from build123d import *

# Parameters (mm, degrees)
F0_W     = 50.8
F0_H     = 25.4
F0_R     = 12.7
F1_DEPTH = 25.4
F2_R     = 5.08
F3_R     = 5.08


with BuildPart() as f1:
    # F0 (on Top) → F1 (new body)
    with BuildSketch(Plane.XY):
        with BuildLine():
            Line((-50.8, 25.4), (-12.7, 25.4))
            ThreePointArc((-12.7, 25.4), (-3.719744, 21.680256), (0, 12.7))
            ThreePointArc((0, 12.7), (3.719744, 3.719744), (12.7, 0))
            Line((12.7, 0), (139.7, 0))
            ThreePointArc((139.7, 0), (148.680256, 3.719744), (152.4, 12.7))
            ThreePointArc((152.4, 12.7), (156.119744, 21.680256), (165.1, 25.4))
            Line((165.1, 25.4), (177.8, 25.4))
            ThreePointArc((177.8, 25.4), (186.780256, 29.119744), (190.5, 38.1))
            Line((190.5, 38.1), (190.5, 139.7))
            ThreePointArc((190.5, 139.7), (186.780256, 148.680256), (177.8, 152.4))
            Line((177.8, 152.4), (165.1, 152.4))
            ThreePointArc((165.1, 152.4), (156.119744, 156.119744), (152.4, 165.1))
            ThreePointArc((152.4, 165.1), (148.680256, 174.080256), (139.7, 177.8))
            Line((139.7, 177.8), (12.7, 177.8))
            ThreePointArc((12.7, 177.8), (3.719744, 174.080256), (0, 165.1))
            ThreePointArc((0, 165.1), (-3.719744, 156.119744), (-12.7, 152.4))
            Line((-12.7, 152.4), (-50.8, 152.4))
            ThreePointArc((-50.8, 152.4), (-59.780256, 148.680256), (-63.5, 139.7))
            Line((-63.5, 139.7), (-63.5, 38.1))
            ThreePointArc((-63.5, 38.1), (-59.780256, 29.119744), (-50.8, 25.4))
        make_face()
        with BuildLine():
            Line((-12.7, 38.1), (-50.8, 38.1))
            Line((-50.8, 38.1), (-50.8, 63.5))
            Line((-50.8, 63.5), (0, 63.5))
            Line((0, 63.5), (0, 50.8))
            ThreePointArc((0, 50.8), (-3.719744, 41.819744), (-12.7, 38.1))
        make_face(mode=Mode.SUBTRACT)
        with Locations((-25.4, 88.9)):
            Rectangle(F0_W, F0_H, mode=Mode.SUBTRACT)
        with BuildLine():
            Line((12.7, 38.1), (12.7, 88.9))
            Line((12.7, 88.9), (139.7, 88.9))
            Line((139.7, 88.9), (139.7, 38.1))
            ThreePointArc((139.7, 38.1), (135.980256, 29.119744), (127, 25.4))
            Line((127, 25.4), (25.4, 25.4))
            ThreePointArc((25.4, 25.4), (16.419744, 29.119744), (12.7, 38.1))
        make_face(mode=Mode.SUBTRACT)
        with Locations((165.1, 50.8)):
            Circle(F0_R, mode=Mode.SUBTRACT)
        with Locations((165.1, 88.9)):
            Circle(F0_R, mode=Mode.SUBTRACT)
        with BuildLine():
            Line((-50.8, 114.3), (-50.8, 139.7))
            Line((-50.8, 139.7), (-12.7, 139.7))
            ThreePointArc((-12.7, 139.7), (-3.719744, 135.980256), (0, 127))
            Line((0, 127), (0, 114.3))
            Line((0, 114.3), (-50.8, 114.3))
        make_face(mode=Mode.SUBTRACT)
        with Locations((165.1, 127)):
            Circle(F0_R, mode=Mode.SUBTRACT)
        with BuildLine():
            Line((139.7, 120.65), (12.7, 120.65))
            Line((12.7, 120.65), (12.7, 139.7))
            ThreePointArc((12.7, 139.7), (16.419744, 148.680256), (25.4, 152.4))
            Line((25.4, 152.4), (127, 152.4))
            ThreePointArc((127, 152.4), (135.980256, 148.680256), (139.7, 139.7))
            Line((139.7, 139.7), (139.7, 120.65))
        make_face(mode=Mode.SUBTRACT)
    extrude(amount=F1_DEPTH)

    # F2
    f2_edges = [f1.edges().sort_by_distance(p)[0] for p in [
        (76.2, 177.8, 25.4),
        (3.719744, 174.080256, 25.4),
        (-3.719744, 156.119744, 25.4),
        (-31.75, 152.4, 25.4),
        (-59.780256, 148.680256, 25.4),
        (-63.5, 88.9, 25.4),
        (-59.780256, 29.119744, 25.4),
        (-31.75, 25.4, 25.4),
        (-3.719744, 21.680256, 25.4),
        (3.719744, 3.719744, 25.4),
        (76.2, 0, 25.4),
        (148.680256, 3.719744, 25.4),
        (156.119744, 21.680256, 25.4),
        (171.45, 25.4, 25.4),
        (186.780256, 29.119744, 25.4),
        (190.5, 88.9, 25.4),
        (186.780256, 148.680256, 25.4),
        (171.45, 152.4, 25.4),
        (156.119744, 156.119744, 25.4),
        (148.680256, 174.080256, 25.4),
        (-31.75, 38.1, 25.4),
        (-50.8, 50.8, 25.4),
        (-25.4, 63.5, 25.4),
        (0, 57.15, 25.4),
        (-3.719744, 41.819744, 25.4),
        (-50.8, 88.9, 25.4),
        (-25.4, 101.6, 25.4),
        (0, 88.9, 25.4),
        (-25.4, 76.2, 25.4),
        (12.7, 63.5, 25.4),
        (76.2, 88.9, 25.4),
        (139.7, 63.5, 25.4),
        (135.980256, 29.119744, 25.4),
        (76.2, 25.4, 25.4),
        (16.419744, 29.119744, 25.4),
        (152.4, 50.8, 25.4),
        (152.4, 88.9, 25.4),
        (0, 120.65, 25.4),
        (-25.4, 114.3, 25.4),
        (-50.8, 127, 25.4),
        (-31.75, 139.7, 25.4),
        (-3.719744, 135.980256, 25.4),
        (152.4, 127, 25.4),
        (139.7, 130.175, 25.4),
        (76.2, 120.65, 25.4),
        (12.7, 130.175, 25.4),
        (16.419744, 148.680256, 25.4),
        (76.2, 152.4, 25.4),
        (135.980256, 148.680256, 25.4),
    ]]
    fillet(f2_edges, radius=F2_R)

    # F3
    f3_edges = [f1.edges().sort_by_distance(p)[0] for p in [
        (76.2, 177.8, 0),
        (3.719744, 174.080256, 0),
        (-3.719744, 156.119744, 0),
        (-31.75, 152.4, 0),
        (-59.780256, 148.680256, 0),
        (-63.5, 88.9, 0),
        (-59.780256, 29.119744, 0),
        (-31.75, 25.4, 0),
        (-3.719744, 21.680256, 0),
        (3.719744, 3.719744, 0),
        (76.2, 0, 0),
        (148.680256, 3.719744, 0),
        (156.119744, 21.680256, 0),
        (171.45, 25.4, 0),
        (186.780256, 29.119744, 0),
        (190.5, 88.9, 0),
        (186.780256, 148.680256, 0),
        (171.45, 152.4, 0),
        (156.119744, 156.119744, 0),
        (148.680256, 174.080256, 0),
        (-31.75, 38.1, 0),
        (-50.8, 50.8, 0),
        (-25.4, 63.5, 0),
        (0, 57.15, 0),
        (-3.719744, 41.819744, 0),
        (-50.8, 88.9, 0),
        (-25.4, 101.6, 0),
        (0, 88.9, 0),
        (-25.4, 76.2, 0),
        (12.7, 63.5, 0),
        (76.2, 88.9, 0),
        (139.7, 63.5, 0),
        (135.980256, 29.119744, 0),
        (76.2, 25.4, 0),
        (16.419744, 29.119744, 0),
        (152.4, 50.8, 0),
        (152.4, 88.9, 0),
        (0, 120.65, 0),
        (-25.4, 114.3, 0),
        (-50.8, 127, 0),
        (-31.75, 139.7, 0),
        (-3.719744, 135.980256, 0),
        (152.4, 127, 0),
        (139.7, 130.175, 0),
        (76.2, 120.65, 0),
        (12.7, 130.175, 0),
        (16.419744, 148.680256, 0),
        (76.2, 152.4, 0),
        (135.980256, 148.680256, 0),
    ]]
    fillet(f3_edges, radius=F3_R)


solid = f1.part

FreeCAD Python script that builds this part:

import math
import FreeCAD as App
import Part
import Sketcher
from FreeCAD import Vector
Q = App.Units.Quantity


def edges_at(feature, points):
    """Names of the edges that pass closest to the given points."""
    edges = feature.Shape.Edges
    near = lambda p: min(range(len(edges)), key=lambda i: edges[i].distToShape(Part.Vertex(*p))[0])
    return sorted({f"Edge{near(p) + 1}" for p in points})

doc = App.newDocument("Part")
body = doc.addObject("PartDesign::Body", "Body")

# Sketch on XY plane
sketch1 = body.newObject("Sketcher::SketchObject", "Sketch")
sketch1.AttachmentSupport = (doc.getObject("XY_Plane"), [""])
sketch1.MapMode = "FlatFace"
sketch1.addGeometry(Part.LineSegment(Vector(-51, 25, 0), Vector(-13, 25, 0)), False)
sketch1.addGeometry(Part.ArcOfCircle(Part.Circle(Vector(-13, 13, 0), Vector(0, 0, 1), 13), math.radians(0), math.radians(90)), False)
sketch1.addGeometry(Part.ArcOfCircle(Part.Circle(Vector(13, 13, 0), Vector(0, 0, 1), 13), math.radians(-180), math.radians(-90)), False)
sketch1.addGeometry(Part.LineSegment(Vector(13, 0, 0), Vector(140, 0, 0)), False)
sketch1.addGeometry(Part.ArcOfCircle(Part.Circle(Vector(140, 13, 0), Vector(0, 0, 1), 13), math.radians(-90), math.radians(0)), False)
sketch1.addGeometry(Part.ArcOfCircle(Part.Circle(Vector(165, 13, 0), Vector(0, 0, 1), 13), math.radians(90), math.radians(180)), False)
sketch1.addGeometry(Part.LineSegment(Vector(165, 25, 0), Vector(178, 25, 0)), False)
sketch1.addGeometry(Part.ArcOfCircle(Part.Circle(Vector(178, 38, 0), Vector(0, 0, 1), 13), math.radians(-90), math.radians(0)), False)
sketch1.addGeometry(Part.LineSegment(Vector(190, 38, 0), Vector(190, 140, 0)), False)
sketch1.addGeometry(Part.ArcOfCircle(Part.Circle(Vector(178, 140, 0), Vector(0, 0, 1), 13), math.radians(0), math.radians(90)), False)
sketch1.addGeometry(Part.LineSegment(Vector(178, 152, 0), Vector(165, 152, 0)), False)
sketch1.addGeometry(Part.ArcOfCircle(Part.Circle(Vector(165, 165, 0), Vector(0, 0, 1), 13), math.radians(-180), math.radians(-90)), False)
sketch1.addGeometry(Part.ArcOfCircle(Part.Circle(Vector(140, 165, 0), Vector(0, 0, 1), 13), math.radians(0), math.radians(90)), False)
sketch1.addGeometry(Part.LineSegment(Vector(140, 178, 0), Vector(13, 178, 0)), False)
sketch1.addGeometry(Part.ArcOfCircle(Part.Circle(Vector(13, 165, 0), Vector(0, 0, 1), 13), math.radians(90), math.radians(180)), False)
sketch1.addGeometry(Part.ArcOfCircle(Part.Circle(Vector(-13, 165, 0), Vector(0, 0, 1), 13), math.radians(-90), math.radians(0)), False)
sketch1.addGeometry(Part.LineSegment(Vector(-13, 152, 0), Vector(-51, 152, 0)), False)
sketch1.addGeometry(Part.ArcOfCircle(Part.Circle(Vector(-51, 140, 0), Vector(0, 0, 1), 13), math.radians(90), math.radians(180)), False)
sketch1.addGeometry(Part.LineSegment(Vector(-64, 140, 0), Vector(-64, 38, 0)), False)
sketch1.addGeometry(Part.ArcOfCircle(Part.Circle(Vector(-51, 38, 0), Vector(0, 0, 1), 13), math.radians(-180), math.radians(-90)), False)
sketch1.addGeometry(Part.ArcOfCircle(Part.Circle(Vector(-13, 51, 0), Vector(0, 0, 1), 13), math.radians(-90), math.radians(0)), False)
sketch1.addGeometry(Part.LineSegment(Vector(-13, 38, 0), Vector(-51, 38, 0)), False)
sketch1.addGeometry(Part.LineSegment(Vector(-51, 38, 0), Vector(-51, 64, 0)), False)
sketch1.addGeometry(Part.LineSegment(Vector(-51, 64, 0), Vector(0, 64, 0)), False)
sketch1.addGeometry(Part.LineSegment(Vector(0, 64, 0), Vector(0, 51, 0)), False)
sketch1.addGeometry(Part.Circle(Vector(165, 51, 0), Vector(0, 0, 1), 13), False)
sketch1.addGeometry(Part.ArcOfCircle(Part.Circle(Vector(25, 38, 0), Vector(0, 0, 1), 13), math.radians(-180), math.radians(-90)), False)
sketch1.addGeometry(Part.LineSegment(Vector(13, 38, 0), Vector(13, 89, 0)), False)
sketch1.addGeometry(Part.LineSegment(Vector(13, 89, 0), Vector(140, 89, 0)), False)
sketch1.addGeometry(Part.LineSegment(Vector(140, 89, 0), Vector(140, 38, 0)), False)
sketch1.addGeometry(Part.ArcOfCircle(Part.Circle(Vector(127, 38, 0), Vector(0, 0, 1), 13), math.radians(-90), math.radians(0)), False)
sketch1.addGeometry(Part.LineSegment(Vector(127, 25, 0), Vector(25, 25, 0)), False)
sketch1.addGeometry(Part.LineSegment(Vector(0, 76, 0), Vector(-51, 76, 0)), False)
sketch1.addGeometry(Part.LineSegment(Vector(-51, 76, 0), Vector(-51, 102, 0)), False)
sketch1.addGeometry(Part.LineSegment(Vector(-51, 102, 0), Vector(0, 102, 0)), False)
sketch1.addGeometry(Part.LineSegment(Vector(0, 102, 0), Vector(0, 76, 0)), False)
sketch1.addGeometry(Part.LineSegment(Vector(0, 114, 0), Vector(-51, 114, 0)), False)
sketch1.addGeometry(Part.LineSegment(Vector(-51, 114, 0), Vector(-51, 140, 0)), False)
sketch1.addGeometry(Part.LineSegment(Vector(-51, 140, 0), Vector(-13, 140, 0)), False)
sketch1.addGeometry(Part.ArcOfCircle(Part.Circle(Vector(-13, 127, 0), Vector(0, 0, 1), 13), math.radians(0), math.radians(90)), False)
sketch1.addGeometry(Part.LineSegment(Vector(0, 127, 0), Vector(0, 114, 0)), False)
sketch1.addGeometry(Part.Circle(Vector(165, 89, 0), Vector(0, 0, 1), 13), False)
sketch1.addGeometry(Part.LineSegment(Vector(140, 140, 0), Vector(140, 121, 0)), False)
sketch1.addGeometry(Part.LineSegment(Vector(140, 121, 0), Vector(13, 121, 0)), False)
sketch1.addGeometry(Part.LineSegment(Vector(13, 121, 0), Vector(13, 140, 0)), False)
sketch1.addGeometry(Part.ArcOfCircle(Part.Circle(Vector(25, 140, 0), Vector(0, 0, 1), 13), math.radians(90), math.radians(180)), False)
sketch1.addGeometry(Part.LineSegment(Vector(25, 152, 0), Vector(127, 152, 0)), False)
sketch1.addGeometry(Part.ArcOfCircle(Part.Circle(Vector(127, 140, 0), Vector(0, 0, 1), 13), math.radians(0), math.radians(90)), False)
sketch1.addGeometry(Part.Circle(Vector(165, 127, 0), Vector(0, 0, 1), 13), False)
sketch1.addConstraint(Sketcher.Constraint("Tangent", 0, 2, 1, 2))
sketch1.addConstraint(Sketcher.Constraint("Tangent", 1, 1, 2, 1))
sketch1.addConstraint(Sketcher.Constraint("Tangent", 2, 2, 3, 1))
sketch1.addConstraint(Sketcher.Constraint("Tangent", 3, 2, 4, 1))
sketch1.addConstraint(Sketcher.Constraint("Tangent", 4, 2, 5, 2))
sketch1.addConstraint(Sketcher.Constraint("Tangent", 5, 1, 6, 1))
sketch1.addConstraint(Sketcher.Constraint("Tangent", 6, 2, 7, 1))
sketch1.addConstraint(Sketcher.Constraint("Tangent", 7, 2, 8, 1))
sketch1.addConstraint(Sketcher.Constraint("Tangent", 8, 2, 9, 1))
sketch1.addConstraint(Sketcher.Constraint("Tangent", 9, 2, 10, 1))
sketch1.addConstraint(Sketcher.Constraint("Tangent", 10, 2, 11, 2))
sketch1.addConstraint(Sketcher.Constraint("Tangent", 11, 1, 12, 1))
sketch1.addConstraint(Sketcher.Constraint("Tangent", 12, 2, 13, 1))
sketch1.addConstraint(Sketcher.Constraint("Tangent", 13, 2, 14, 1))
sketch1.addConstraint(Sketcher.Constraint("Tangent", 14, 2, 15, 2))
sketch1.addConstraint(Sketcher.Constraint("Tangent", 15, 1, 16, 1))
sketch1.addConstraint(Sketcher.Constraint("Tangent", 16, 2, 17, 1))
sketch1.addConstraint(Sketcher.Constraint("Tangent", 17, 2, 18, 1))
sketch1.addConstraint(Sketcher.Constraint("Tangent", 18, 2, 19, 1))
sketch1.addConstraint(Sketcher.Constraint("Tangent", 19, 2, 0, 1))
sketch1.addConstraint(Sketcher.Constraint("Tangent", 20, 1, 21, 1))
sketch1.addConstraint(Sketcher.Constraint("Coincident", 21, 2, 22, 1))
sketch1.addConstraint(Sketcher.Constraint("Coincident", 22, 2, 23, 1))
sketch1.addConstraint(Sketcher.Constraint("Coincident", 23, 2, 24, 1))
sketch1.addConstraint(Sketcher.Constraint("Tangent", 24, 2, 20, 2))
sketch1.addConstraint(Sketcher.Constraint("Tangent", 26, 1, 27, 1))
sketch1.addConstraint(Sketcher.Constraint("Coincident", 27, 2, 28, 1))
sketch1.addConstraint(Sketcher.Constraint("Coincident", 28, 2, 29, 1))
sketch1.addConstraint(Sketcher.Constraint("Tangent", 29, 2, 30, 2))
sketch1.addConstraint(Sketcher.Constraint("Tangent", 30, 1, 31, 1))
sketch1.addConstraint(Sketcher.Constraint("Tangent", 31, 2, 26, 2))
sketch1.addConstraint(Sketcher.Constraint("Coincident", 32, 2, 33, 1))
sketch1.addConstraint(Sketcher.Constraint("Coincident", 33, 2, 34, 1))
sketch1.addConstraint(Sketcher.Constraint("Coincident", 34, 2, 35, 1))
sketch1.addConstraint(Sketcher.Constraint("Coincident", 35, 2, 32, 1))
sketch1.addConstraint(Sketcher.Constraint("Coincident", 36, 2, 37, 1))
sketch1.addConstraint(Sketcher.Constraint("Coincident", 37, 2, 38, 1))
sketch1.addConstraint(Sketcher.Constraint("Tangent", 38, 2, 39, 2))
sketch1.addConstraint(Sketcher.Constraint("Tangent", 39, 1, 40, 1))
sketch1.addConstraint(Sketcher.Constraint("Coincident", 40, 2, 36, 1))
sketch1.addConstraint(Sketcher.Constraint("Coincident", 42, 2, 43, 1))
sketch1.addConstraint(Sketcher.Constraint("Coincident", 43, 2, 44, 1))
sketch1.addConstraint(Sketcher.Constraint("Tangent", 44, 2, 45, 2))
sketch1.addConstraint(Sketcher.Constraint("Tangent", 45, 1, 46, 1))
sketch1.addConstraint(Sketcher.Constraint("Tangent", 46, 2, 47, 2))
sketch1.addConstraint(Sketcher.Constraint("Tangent", 47, 1, 42, 1))
sketch1.addConstraint(Sketcher.Constraint("Horizontal", 0))
sketch1.addConstraint(Sketcher.Constraint("Horizontal", 3))
sketch1.addConstraint(Sketcher.Constraint("Horizontal", 6))
sketch1.addConstraint(Sketcher.Constraint("Vertical", 8))
sketch1.addConstraint(Sketcher.Constraint("Horizontal", 10))
sketch1.addConstraint(Sketcher.Constraint("Horizontal", 13))
sketch1.addConstraint(Sketcher.Constraint("Horizontal", 16))
sketch1.addConstraint(Sketcher.Constraint("Vertical", 18))
sketch1.addConstraint(Sketcher.Constraint("Horizontal", 21))
sketch1.addConstraint(Sketcher.Constraint("Vertical", 22))
sketch1.addConstraint(Sketcher.Constraint("Horizontal", 23))
sketch1.addConstraint(Sketcher.Constraint("Vertical", 24))
sketch1.addConstraint(Sketcher.Constraint("Vertical", 27))
sketch1.addConstraint(Sketcher.Constraint("Horizontal", 28))
sketch1.addConstraint(Sketcher.Constraint("Vertical", 29))
sketch1.addConstraint(Sketcher.Constraint("Horizontal", 31))
sketch1.addConstraint(Sketcher.Constraint("Horizontal", 32))
sketch1.addConstraint(Sketcher.Constraint("Vertical", 33))
sketch1.addConstraint(Sketcher.Constraint("Horizontal", 34))
sketch1.addConstraint(Sketcher.Constraint("Vertical", 35))
sketch1.addConstraint(Sketcher.Constraint("Horizontal", 36))
sketch1.addConstraint(Sketcher.Constraint("Vertical", 37))
sketch1.addConstraint(Sketcher.Constraint("Horizontal", 38))
sketch1.addConstraint(Sketcher.Constraint("Vertical", 40))
sketch1.addConstraint(Sketcher.Constraint("Vertical", 42))
sketch1.addConstraint(Sketcher.Constraint("Horizontal", 43))
sketch1.addConstraint(Sketcher.Constraint("Vertical", 44))
sketch1.addConstraint(Sketcher.Constraint("Horizontal", 46))
sketch1.addConstraint(Sketcher.Constraint("Coincident", 21, 2, 19, 3))
sketch1.addConstraint(Sketcher.Constraint("Coincident", 37, 2, 17, 3))
sketch1.addConstraint(Sketcher.Constraint("Equal", 1, 2))
sketch1.addConstraint(Sketcher.Constraint("Equal", 2, 4))
sketch1.addConstraint(Sketcher.Constraint("Equal", 4, 5))
sketch1.addConstraint(Sketcher.Constraint("Equal", 5, 7))
sketch1.addConstraint(Sketcher.Constraint("Equal", 7, 9))
sketch1.addConstraint(Sketcher.Constraint("Equal", 9, 11))
sketch1.addConstraint(Sketcher.Constraint("Equal", 11, 12))
sketch1.addConstraint(Sketcher.Constraint("Equal", 12, 14))
sketch1.addConstraint(Sketcher.Constraint("Equal", 14, 15))
sketch1.addConstraint(Sketcher.Constraint("Equal", 15, 17))
sketch1.addConstraint(Sketcher.Constraint("Equal", 17, 19))
sketch1.addConstraint(Sketcher.Constraint("Equal", 19, 20))
sketch1.addConstraint(Sketcher.Constraint("Equal", 20, 25))
sketch1.addConstraint(Sketcher.Constraint("Equal", 25, 26))
sketch1.addConstraint(Sketcher.Constraint("Equal", 26, 30))
sketch1.addConstraint(Sketcher.Constraint("Equal", 30, 39))
sketch1.addConstraint(Sketcher.Constraint("Equal", 39, 41))
sketch1.addConstraint(Sketcher.Constraint("Equal", 41, 45))
sketch1.addConstraint(Sketcher.Constraint("Equal", 45, 47))
sketch1.addConstraint(Sketcher.Constraint("Equal", 47, 48))
sketch1.addConstraint(Sketcher.Constraint("Symmetric", 1, 3, 2, 3, -2))
sketch1.addConstraint(Sketcher.Constraint("Symmetric", 14, 3, 15, 3, -2))
sketch1.addConstraint(Sketcher.Constraint("Symmetric", 20, 1, 26, 1, -2))
sketch1.addConstraint(Sketcher.Constraint("Symmetric", 38, 2, 44, 2, -2))
sketch1.addConstraint(Sketcher.Constraint("PointOnObject", 2, 2, -1))
sketch1.addConstraint(Sketcher.Constraint("PointOnObject", 23, 2, -2))
sketch1.addConstraint(Sketcher.Constraint("PointOnObject", 34, 2, -2))
sketch1.addConstraint(Sketcher.Constraint("PointOnObject", 39, 1, -2))
sketch1.addConstraint(Sketcher.Constraint("Horizontal", 4, 3, 5, 3))
sketch1.addConstraint(Sketcher.Constraint("Horizontal", 11, 3, 12, 3))
sketch1.addConstraint(Sketcher.Constraint("Horizontal", 20, 3, 25, 3))
sketch1.addConstraint(Sketcher.Constraint("Horizontal", 39, 3, 48, 3))
sketch1.addConstraint(Sketcher.Constraint("Horizontal", 41, 3, 27, 2))
sketch1.addConstraint(Sketcher.Constraint("Vertical", 5, 3, 11, 3))
sketch1.addConstraint(Sketcher.Constraint("Vertical", 11, 3, 25, 3))
sketch1.addConstraint(Sketcher.Constraint("Vertical", 25, 3, 41, 3))
sketch1.addConstraint(Sketcher.Constraint("Vertical", 30, 3, 47, 3))
sketch1.addConstraint(Sketcher.Constraint("Vertical", 41, 3, 48, 3))
sketch1.addConstraint(Sketcher.Constraint("Vertical", 12, 2, 28, 2))
sketch1.addConstraint(Sketcher.Constraint("Vertical", 22, 2, 32, 2))
sketch1.addConstraint(Sketcher.Constraint("Equal", 46, 8))
sketch1.addConstraint(Sketcher.Constraint("Equal", 10, 24))
sketch1.addConstraint(Sketcher.Constraint("Equal", 36, 27))
sketch1.addConstraint(Sketcher.Constraint("Equal", 22, 33))
sketch1.addConstraint(Sketcher.Constraint("Equal", 35, 37))
sketch1.addConstraint(Sketcher.Constraint("Diameter", 25, Q("1 in")))
sketch1.addConstraint(Sketcher.Constraint("DistanceX", 3, 1, 3, 2, Q("5 in")))
sketch1.addConstraint(Sketcher.Constraint("DistanceX", 23, 1, 23, 2, Q("2 in")))
sketch1.addConstraint(Sketcher.Constraint("DistanceY", 22, 1, 22, 2, Q("1 in")))
sketch1.addConstraint(Sketcher.Constraint("DistanceY", -1, 1, 32, 2, Q("3 in")))
sketch1.addConstraint(Sketcher.Constraint("DistanceY", 42, 2, 42, 1, Q("0.75 in")))
pad1 = body.newObject("PartDesign::Pad", "Pad")
pad1.Profile = sketch1
pad1.Length = Q("1 in")
doc.recompute()

fillet = body.newObject("PartDesign::Fillet", "Fillet")
fillet.Base = (pad1, edges_at(pad1, [
    (76.2, 177.8, 25.4),
    (3.72, 174.08, 25.4),
    (-3.72, 156.12, 25.4),
    (-31.75, 152.4, 25.4),
    (-59.78, 148.68, 25.4),
    (-63.5, 88.9, 25.4),
    (-59.78, 29.12, 25.4),
    (-31.75, 25.4, 25.4),
    (-3.72, 21.68, 25.4),
    (3.72, 3.72, 25.4),
    (76.2, 0, 25.4),
    (148.68, 3.72, 25.4),
    (156.12, 21.68, 25.4),
    (171.45, 25.4, 25.4),
    (186.78, 29.12, 25.4),
    (190.5, 88.9, 25.4),
    (186.78, 148.68, 25.4),
    (171.45, 152.4, 25.4),
    (156.12, 156.12, 25.4),
    (148.68, 174.08, 25.4),
    (-31.75, 38.1, 25.4),
    (-50.8, 50.8, 25.4),
    (-25.4, 63.5, 25.4),
    (0, 57.15, 25.4),
    (-3.72, 41.82, 25.4),
    (-50.8, 88.9, 25.4),
    (-25.4, 101.6, 25.4),
    (0, 88.9, 25.4),
    (-25.4, 76.2, 25.4),
    (12.7, 63.5, 25.4),
    (76.2, 88.9, 25.4),
    (139.7, 63.5, 25.4),
    (135.98, 29.12, 25.4),
    (76.2, 25.4, 25.4),
    (16.42, 29.12, 25.4),
    (152.4, 50.8, 25.4),
    (152.4, 88.9, 25.4),
    (0, 120.65, 25.4),
    (-25.4, 114.3, 25.4),
    (-50.8, 127, 25.4),
    (-31.75, 139.7, 25.4),
    (-3.72, 135.98, 25.4),
    (152.4, 127, 25.4),
    (139.7, 130.175, 25.4),
    (76.2, 120.65, 25.4),
    (12.7, 130.175, 25.4),
    (16.42, 148.68, 25.4),
    (76.2, 152.4, 25.4),
    (135.98, 148.68, 25.4),
]))
fillet.Radius = Q("0.2 in")
doc.recompute()

fillet2 = body.newObject("PartDesign::Fillet", "Fillet001")
fillet2.Base = (fillet, edges_at(fillet, [
    (76.2, 177.8, 0),
    (3.72, 174.08, 0),
    (-3.72, 156.12, 0),
    (-31.75, 152.4, 0),
    (-59.78, 148.68, 0),
    (-63.5, 88.9, 0),
    (-59.78, 29.12, 0),
    (-31.75, 25.4, 0),
    (-3.72, 21.68, 0),
    (3.72, 3.72, 0),
    (76.2, 0, 0),
    (148.68, 3.72, 0),
    (156.12, 21.68, 0),
    (171.45, 25.4, 0),
    (186.78, 29.12, 0),
    (190.5, 88.9, 0),
    (186.78, 148.68, 0),
    (171.45, 152.4, 0),
    (156.12, 156.12, 0),
    (148.68, 174.08, 0),
    (-31.75, 38.1, 0),
    (-50.8, 50.8, 0),
    (-25.4, 63.5, 0),
    (0, 57.15, 0),
    (-3.72, 41.82, 0),
    (-50.8, 88.9, 0),
    (-25.4, 101.6, 0),
    (0, 88.9, 0),
    (-25.4, 76.2, 0),
    (12.7, 63.5, 0),
    (76.2, 88.9, 0),
    (139.7, 63.5, 0),
    (135.98, 29.12, 0),
    (76.2, 25.4, 0),
    (16.42, 29.12, 0),
    (152.4, 50.8, 0),
    (152.4, 88.9, 0),
    (0, 120.65, 0),
    (-25.4, 114.3, 0),
    (-50.8, 127, 0),
    (-31.75, 139.7, 0),
    (-3.72, 135.98, 0),
    (152.4, 127, 0),
    (139.7, 130.175, 0),
    (76.2, 120.65, 0),
    (12.7, 130.175, 0),
    (16.42, 148.68, 0),
    (76.2, 152.4, 0),
    (135.98, 148.68, 0),
]))
fillet2.Radius = Q("0.2 in")

doc.recompute()
